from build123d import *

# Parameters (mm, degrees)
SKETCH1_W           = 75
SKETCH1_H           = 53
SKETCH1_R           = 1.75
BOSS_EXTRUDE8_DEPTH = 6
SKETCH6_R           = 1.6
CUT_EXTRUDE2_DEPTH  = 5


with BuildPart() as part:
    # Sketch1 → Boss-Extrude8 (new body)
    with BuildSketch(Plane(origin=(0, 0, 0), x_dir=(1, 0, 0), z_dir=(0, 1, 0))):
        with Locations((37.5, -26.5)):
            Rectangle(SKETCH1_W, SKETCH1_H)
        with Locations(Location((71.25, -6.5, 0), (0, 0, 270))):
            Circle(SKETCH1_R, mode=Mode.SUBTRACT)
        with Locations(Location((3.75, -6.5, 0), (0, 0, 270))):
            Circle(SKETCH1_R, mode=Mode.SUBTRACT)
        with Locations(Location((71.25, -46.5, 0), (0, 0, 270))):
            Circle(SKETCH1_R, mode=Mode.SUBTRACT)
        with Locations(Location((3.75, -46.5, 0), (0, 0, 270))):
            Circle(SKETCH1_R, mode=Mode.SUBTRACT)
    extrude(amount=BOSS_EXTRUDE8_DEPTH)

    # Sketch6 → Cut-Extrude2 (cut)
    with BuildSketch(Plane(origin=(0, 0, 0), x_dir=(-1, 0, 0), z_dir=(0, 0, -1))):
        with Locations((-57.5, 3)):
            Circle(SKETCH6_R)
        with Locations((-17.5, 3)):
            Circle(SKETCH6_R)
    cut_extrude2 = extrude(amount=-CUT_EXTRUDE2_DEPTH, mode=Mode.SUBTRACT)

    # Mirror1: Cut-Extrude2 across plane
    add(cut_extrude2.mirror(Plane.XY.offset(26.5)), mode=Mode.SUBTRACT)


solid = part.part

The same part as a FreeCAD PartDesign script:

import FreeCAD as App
import Part
import Sketcher


def add_polygon(sketch, points):
    """Adds a closed chain of lines whose ends are joined by coincident constraints."""
    first, n = sketch.GeometryCount, len(points)
    for a, b in zip(points, points[1:] + points[:1]):
        sketch.addGeometry(Part.LineSegment(App.Vector(*a, 0), App.Vector(*b, 0)), False)
    for i in range(n):
        sketch.addConstraint(Sketcher.Constraint("Coincident", first + i, 2, first + (i + 1) % n, 1))

doc = App.newDocument("Part")
body = doc.addObject("PartDesign::Body", "Body")

# Sketch on XZ plane
sketch1 = doc.addObject("Sketcher::SketchObject", "Sketch")
body.addObject(sketch1)
sketch1.AttachmentSupport = (doc.XZ_Plane, [""])
sketch1.MapMode = "FlatFace"
add_polygon(sketch1, [(0, 0), (0, 53), (75, 53), (75, 0)])  # lines 0-3
sketch1.addGeometry(Part.Circle(App.Vector(3.8, 46.5, 0), App.Vector(0, 0, 1), 1.8), False)  # 4
sketch1.addGeometry(Part.Circle(App.Vector(71.2, 46.5, 0), App.Vector(0, 0, 1), 1.8), False)  # 5
sketch1.addGeometry(Part.Circle(App.Vector(3.8, 6.5, 0), App.Vector(0, 0, 1), 1.8), False)  # 6
sketch1.addGeometry(Part.Circle(App.Vector(71.2, 6.5, 0), App.Vector(0, 0, 1), 1.8), False)  # 7
sketch1.addConstraint(Sketcher.Constraint("Vertical", 0))
sketch1.addConstraint(Sketcher.Constraint("Horizontal", 1))
sketch1.addConstraint(Sketcher.Constraint("Vertical", 2))
sketch1.addConstraint(Sketcher.Constraint("Horizontal", 3))
sketch1.addConstraint(Sketcher.Constraint("Coincident", 3, 2, -1, 1))
sketch1.addConstraint(Sketcher.Constraint("Equal", 4, 5))
sketch1.addConstraint(Sketcher.Constraint("Equal", 5, 6))
sketch1.addConstraint(Sketcher.Constraint("Equal", 6, 7))
sketch1.addConstraint(Sketcher.Constraint("Horizontal", 4, 3, 5, 3))
sketch1.addConstraint(Sketcher.Constraint("Horizontal", 6, 3, 7, 3))
sketch1.addConstraint(Sketcher.Constraint("Vertical", 4, 3, 6, 3))
sketch1.addConstraint(Sketcher.Constraint("Vertical", 5, 3, 7, 3))
sketch1.addConstraint(Sketcher.Constraint("Diameter", 4, 3.5))
sketch1.addConstraint(Sketcher.Constraint("DistanceX", 1, 1, 1, 2, 75.0))
sketch1.addConstraint(Sketcher.Constraint("DistanceY", 0, 1, 0, 2, 53.0))
sketch1.addConstraint(Sketcher.Constraint("DistanceY", 6, 3, 4, 3, 40.0))
sketch1.addConstraint(Sketcher.Constraint("DistanceY", -1, 1, 4, 3, 46.5))
sketch1.addConstraint(Sketcher.Constraint("DistanceX", 4, 3, 5, 3, 67.5))
sketch1.addConstraint(Sketcher.Constraint("DistanceX", -1, 1, 4, 3, 3.75))
pad1 = doc.addObject("PartDesign::Pad", "Pad")
body.addObject(pad1)
pad1.Profile = sketch1
pad1.Length = 6
pad1.Reversed = True

# Sketch on XY plane
sketch2 = doc.addObject("Sketcher::SketchObject", "Sketch001")
body.addObject(sketch2)
sketch2.AttachmentSupport = (doc.XY_Plane, [""])
sketch2.MapMode = "FlatFace"
sketch2.addGeometry(Part.Circle(App.Vector(57.5, 3, 0), App.Vector(0, 0, 1), 1.6), False)
sketch2.addGeometry(Part.Circle(App.Vector(17.5, 3, 0), App.Vector(0, 0, 1), 1.6), False)
sketch2.addConstraint(Sketcher.Constraint("Equal", 0, 1))
sketch2.addConstraint(Sketcher.Constraint("Horizontal", 0, 3, 1, 3))
sketch2.addConstraint(Sketcher.Constraint("Diameter", 0, 3.2))
sketch2.addConstraint(Sketcher.Constraint("DistanceY", -1, 1, 0, 3, 3.0))
sketch2.addConstraint(Sketcher.Constraint("DistanceX", 1, 3, 0, 3, 40.0))
sketch2.addConstraint(Sketcher.Constraint("DistanceX", -1, 1, 0, 3, 57.5))
pocket1 = doc.addObject("PartDesign::Pocket", "Pocket")
body.addObject(pocket1)
pocket1.Profile = sketch2
pocket1.Length = 5
pocket1.Reversed = True
doc.recompute()

datumplane = doc.addObject("PartDesign::Plane", "DatumPlane")
body.addObject(datumplane)
datumplane.AttachmentSupport = (doc.XY_Plane, [""])
datumplane.MapMode = "FlatFace"
datumplane.AttachmentOffset = App.Placement(App.Vector(0, 0, 26.5), App.Rotation())
mirrored = doc.addObject("PartDesign::Mirrored", "Mirrored")
body.addObject(mirrored)
mirrored.Originals = [pocket1]
mirrored.MirrorPlane = (datumplane, [""])
body.Tip = mirrored

doc.recompute()
